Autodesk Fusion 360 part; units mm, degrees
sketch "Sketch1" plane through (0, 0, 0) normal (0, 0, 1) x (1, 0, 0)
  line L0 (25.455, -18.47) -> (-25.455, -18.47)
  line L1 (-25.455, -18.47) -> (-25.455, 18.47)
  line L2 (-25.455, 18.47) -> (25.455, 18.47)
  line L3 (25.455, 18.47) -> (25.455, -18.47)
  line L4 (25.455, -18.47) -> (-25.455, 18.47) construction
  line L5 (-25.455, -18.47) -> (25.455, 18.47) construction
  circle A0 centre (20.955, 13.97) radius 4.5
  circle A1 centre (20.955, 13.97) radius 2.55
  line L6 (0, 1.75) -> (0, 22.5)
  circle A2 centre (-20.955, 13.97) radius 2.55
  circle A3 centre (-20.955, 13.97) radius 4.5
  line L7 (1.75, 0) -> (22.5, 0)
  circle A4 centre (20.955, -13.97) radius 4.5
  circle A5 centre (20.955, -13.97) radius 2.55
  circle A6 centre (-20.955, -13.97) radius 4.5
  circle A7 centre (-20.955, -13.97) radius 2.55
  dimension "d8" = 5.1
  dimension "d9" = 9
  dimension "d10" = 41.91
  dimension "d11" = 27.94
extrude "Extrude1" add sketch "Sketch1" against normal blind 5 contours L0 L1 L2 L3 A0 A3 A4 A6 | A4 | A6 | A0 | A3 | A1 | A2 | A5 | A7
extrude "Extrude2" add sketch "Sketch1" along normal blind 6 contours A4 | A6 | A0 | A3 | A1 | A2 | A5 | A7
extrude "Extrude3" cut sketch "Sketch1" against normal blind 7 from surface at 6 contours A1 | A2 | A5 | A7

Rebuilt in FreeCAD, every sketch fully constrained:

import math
import FreeCAD as App
import Part
import Sketcher
from FreeCAD import Vector

doc = App.newDocument("Part")
params = doc.addObject("Spreadsheet::Sheet", "Params")
for row, (alias, value) in enumerate([
    ("sketch1_radius", "4.5 mm"),
    ("sketch1_width", "41.91 mm"),
    ("sketch1_height", "27.94 mm"),
    ("pad1_length", "5 mm"),
    ("sketch2_diameter", "9 mm"),
    ("pad2_length", "6 mm"),
    ("sketch3_diameter", "5.1 mm"),
    ("pocket1_length", "7 mm"),
], start=1):
    params.set(f"A{row}", alias)
    params.set(f"B{row}", "=" + value)
    params.setAlias(f"B{row}", alias)

body = doc.addObject("PartDesign::Body", "Body")

# Sketch on XY plane
sketch1 = doc.addObject("Sketcher::SketchObject", "Sketch")
body.addObject(sketch1)
sketch1.AttachmentSupport = (doc.XY_Plane, [""])
sketch1.MapMode = "FlatFace"
sketch1.addGeometry([
    Part.LineSegment(Vector(-21, -18.5, 0), Vector(21, -18.5, 0)),  # 0
    Part.ArcOfCircle(Part.Circle(Vector(21, -14, 0), Vector(0, 0, 1), 4.5), math.radians(-90), math.radians(0)),  # 1
    Part.LineSegment(Vector(25.5, -14, 0), Vector(25.5, 14, 0)),  # 2
    Part.ArcOfCircle(Part.Circle(Vector(21, 14, 0), Vector(0, 0, 1), 4.5), math.radians(0), math.radians(90)),  # 3
    Part.LineSegment(Vector(21, 18.5, 0), Vector(-21, 18.5, 0)),  # 4
    Part.ArcOfCircle(Part.Circle(Vector(-21, 14, 0), Vector(0, 0, 1), 4.5), math.radians(90), math.radians(180)),  # 5
    Part.LineSegment(Vector(-25.5, 14, 0), Vector(-25.5, -14, 0)),  # 6
    Part.ArcOfCircle(Part.Circle(Vector(-21, -14, 0), Vector(0, 0, 1), 4.5), math.radians(180), math.radians(270)),  # 7
], False)
sketch1.addConstraint([
    Sketcher.Constraint("Tangent", 0, 2, 1, 1),
    Sketcher.Constraint("Tangent", 1, 2, 2, 1),
    Sketcher.Constraint("Tangent", 2, 2, 3, 1),
    Sketcher.Constraint("Tangent", 3, 2, 4, 1),
    Sketcher.Constraint("Tangent", 4, 2, 5, 1),
    Sketcher.Constraint("Tangent", 5, 2, 6, 1),
    Sketcher.Constraint("Tangent", 6, 2, 7, 1),
    Sketcher.Constraint("Tangent", 7, 2, 0, 1),
    Sketcher.Constraint("Horizontal", 0),
    Sketcher.Constraint("Vertical", 2),
    Sketcher.Constraint("Horizontal", 4),
    Sketcher.Constraint("Vertical", 6),
    Sketcher.Constraint("Equal", 1, 3),
    Sketcher.Constraint("Equal", 3, 5),
    Sketcher.Constraint("Equal", 5, 7),
    Sketcher.Constraint("Symmetric", 1, 3, 5, 3, -1, 1),
    Sketcher.Constraint("Radius", 1, 4.5),
    Sketcher.Constraint("DistanceX", 0, 1, 0, 2, 41.91),
    Sketcher.Constraint("DistanceY", 2, 1, 2, 2, 27.94),
])
sketch1.setExpression("Constraints[16]", "Params.sketch1_radius")
sketch1.setExpression("Constraints[17]", "Params.sketch1_width")
sketch1.setExpression("Constraints[18]", "Params.sketch1_height")
pad1 = doc.addObject("PartDesign::Pad", "Pad")
body.addObject(pad1)
pad1.Profile = sketch1
pad1.setExpression("Length", "Params.pad1_length")
pad1.Reversed = True

# Sketch on XY plane
sketch2 = doc.addObject("Sketcher::SketchObject", "Sketch001")
body.addObject(sketch2)
sketch2.AttachmentSupport = (doc.XY_Plane, [""])
sketch2.MapMode = "FlatFace"
sketch2.addGeometry([
    Part.Circle(Vector(21, -14, 0), Vector(0, 0, 1), 4.5),
    Part.Circle(Vector(-21, -14, 0), Vector(0, 0, 1), 4.5),
    Part.Circle(Vector(21, 14, 0), Vector(0, 0, 1), 4.5),
    Part.Circle(Vector(-21, 14, 0), Vector(0, 0, 1), 4.5),
], False)
sketch2.addConstraint([
    Sketcher.Constraint("Equal", 0, 1),
    Sketcher.Constraint("Equal", 1, 2),
    Sketcher.Constraint("Equal", 2, 3),
    Sketcher.Constraint("Symmetric", 1, 3, 2, 3, -1, 1),
    Sketcher.Constraint("Symmetric", 0, 3, 3, 3, -1, 1),
    Sketcher.Constraint("Symmetric", 0, 3, 1, 3, -2),
    Sketcher.Constraint("Diameter", 0, 9.0),
    Sketcher.Constraint("DistanceX", 1, 3, 0, 3, 41.91),
    Sketcher.Constraint("DistanceY", 0, 3, 2, 3, 27.94),
])
sketch2.setExpression("Constraints[6]", "Params.sketch2_diameter")
pad2 = doc.addObject("PartDesign::Pad", "Pad001")
body.addObject(pad2)
pad2.Profile = sketch2
pad2.setExpression("Length", "Params.pad2_length")

# Sketch on XY plane
sketch3 = doc.addObject("Sketcher::SketchObject", "Sketch002")
body.addObject(sketch3)
sketch3.AttachmentSupport = (doc.XY_Plane, [""])
sketch3.MapMode = "FlatFace"
sketch3.AttachmentOffset = App.Placement(Vector(0, 0, 6), App.Rotation())
sketch3.addGeometry([
    Part.Circle(Vector(21, 14, 0), Vector(0, 0, 1), 2.5),
    Part.Circle(Vector(-21, 14, 0), Vector(0, 0, 1), 2.5),
    Part.Circle(Vector(21, -14, 0), Vector(0, 0, 1), 2.5),
    Part.Circle(Vector(-21, -14, 0), Vector(0, 0, 1), 2.5),
], False)
sketch3.addConstraint([
    Sketcher.Constraint("Equal", 0, 1),
    Sketcher.Constraint("Equal", 1, 2),
    Sketcher.Constraint("Equal", 2, 3),
    Sketcher.Constraint("Symmetric", 1, 3, 2, 3, -1, 1),
    Sketcher.Constraint("Symmetric", 0, 3, 3, 3, -1, 1),
    Sketcher.Constraint("Symmetric", 0, 3, 1, 3, -2),
    Sketcher.Constraint("Diameter", 0, 5.1),
    Sketcher.Constraint("DistanceX", 1, 3, 0, 3, 41.91),
    Sketcher.Constraint("DistanceY", 2, 3, 0, 3, 27.94),
])
sketch3.setExpression("Constraints[6]", "Params.sketch3_diameter")
pocket1 = doc.addObject("PartDesign::Pocket", "Pocket")
body.addObject(pocket1)
pocket1.Profile = sketch3
pocket1.setExpression("Length", "Params.pocket1_length")

doc.recompute()
